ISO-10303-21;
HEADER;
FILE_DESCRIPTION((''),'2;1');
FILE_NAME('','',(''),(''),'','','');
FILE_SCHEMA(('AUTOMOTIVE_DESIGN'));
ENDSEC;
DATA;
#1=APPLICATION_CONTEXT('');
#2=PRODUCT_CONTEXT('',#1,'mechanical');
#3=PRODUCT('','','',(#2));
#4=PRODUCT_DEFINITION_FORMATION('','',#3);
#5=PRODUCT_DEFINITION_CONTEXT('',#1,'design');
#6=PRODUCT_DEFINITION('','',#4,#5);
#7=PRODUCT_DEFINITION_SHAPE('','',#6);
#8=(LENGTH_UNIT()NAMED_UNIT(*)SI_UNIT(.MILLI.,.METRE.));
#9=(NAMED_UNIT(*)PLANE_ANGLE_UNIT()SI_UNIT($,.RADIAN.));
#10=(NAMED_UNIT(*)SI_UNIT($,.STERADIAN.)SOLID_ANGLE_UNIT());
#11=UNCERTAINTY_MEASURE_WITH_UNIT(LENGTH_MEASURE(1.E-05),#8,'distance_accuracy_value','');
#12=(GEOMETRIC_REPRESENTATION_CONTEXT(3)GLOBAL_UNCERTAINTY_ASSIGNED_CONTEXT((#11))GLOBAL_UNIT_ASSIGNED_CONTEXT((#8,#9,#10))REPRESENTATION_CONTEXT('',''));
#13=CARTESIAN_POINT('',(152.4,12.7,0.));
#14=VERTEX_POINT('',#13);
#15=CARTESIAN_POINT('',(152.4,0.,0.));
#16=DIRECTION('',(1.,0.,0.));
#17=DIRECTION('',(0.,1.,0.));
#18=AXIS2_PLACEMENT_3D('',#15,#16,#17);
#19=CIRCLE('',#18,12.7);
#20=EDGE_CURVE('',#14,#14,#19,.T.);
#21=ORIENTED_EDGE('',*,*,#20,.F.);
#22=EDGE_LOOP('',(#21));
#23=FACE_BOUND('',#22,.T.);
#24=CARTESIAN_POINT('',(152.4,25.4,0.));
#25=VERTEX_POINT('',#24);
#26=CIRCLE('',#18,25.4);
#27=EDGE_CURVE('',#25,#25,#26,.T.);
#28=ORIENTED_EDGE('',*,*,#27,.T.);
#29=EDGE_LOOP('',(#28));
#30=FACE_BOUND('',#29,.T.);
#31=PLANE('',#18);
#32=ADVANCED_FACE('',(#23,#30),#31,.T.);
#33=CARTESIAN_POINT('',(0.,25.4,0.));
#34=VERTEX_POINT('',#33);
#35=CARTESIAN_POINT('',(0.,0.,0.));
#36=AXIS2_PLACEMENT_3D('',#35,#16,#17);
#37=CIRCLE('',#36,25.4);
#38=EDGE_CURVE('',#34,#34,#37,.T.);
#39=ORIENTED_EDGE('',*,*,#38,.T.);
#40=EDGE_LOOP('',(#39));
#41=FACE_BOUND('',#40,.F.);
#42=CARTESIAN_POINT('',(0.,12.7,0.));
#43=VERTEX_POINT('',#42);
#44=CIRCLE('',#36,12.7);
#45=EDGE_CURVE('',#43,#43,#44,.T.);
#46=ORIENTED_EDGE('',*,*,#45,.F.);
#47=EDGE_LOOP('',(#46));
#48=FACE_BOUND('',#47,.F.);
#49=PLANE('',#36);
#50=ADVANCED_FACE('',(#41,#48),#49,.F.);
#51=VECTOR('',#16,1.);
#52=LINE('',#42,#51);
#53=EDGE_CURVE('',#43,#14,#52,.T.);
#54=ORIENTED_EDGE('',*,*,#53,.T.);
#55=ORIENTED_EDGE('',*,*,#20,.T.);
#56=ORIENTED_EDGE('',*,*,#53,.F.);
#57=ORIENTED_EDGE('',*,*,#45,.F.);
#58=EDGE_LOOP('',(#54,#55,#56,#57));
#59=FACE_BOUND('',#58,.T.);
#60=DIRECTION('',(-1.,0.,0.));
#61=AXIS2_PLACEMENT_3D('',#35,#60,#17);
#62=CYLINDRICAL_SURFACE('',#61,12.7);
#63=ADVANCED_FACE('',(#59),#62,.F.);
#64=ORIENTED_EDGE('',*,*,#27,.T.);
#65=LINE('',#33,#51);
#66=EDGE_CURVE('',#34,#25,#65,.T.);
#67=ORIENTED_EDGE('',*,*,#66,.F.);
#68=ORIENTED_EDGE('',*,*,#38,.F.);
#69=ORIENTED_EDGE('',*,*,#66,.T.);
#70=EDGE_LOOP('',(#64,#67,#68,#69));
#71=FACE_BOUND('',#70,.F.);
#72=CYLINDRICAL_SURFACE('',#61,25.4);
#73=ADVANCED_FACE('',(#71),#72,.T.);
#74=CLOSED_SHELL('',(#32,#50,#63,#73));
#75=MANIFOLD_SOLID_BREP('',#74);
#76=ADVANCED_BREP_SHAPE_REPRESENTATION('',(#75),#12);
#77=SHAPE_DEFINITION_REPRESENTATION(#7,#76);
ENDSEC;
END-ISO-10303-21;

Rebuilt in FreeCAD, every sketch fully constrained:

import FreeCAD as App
import Part
import Sketcher
from FreeCAD import Vector
Q = App.Units.Quantity

doc = App.newDocument("Part")
body = doc.addObject("PartDesign::Body", "Body")

sketch1 = body.newObject("Sketcher::SketchObject", "Sketch")
sketch1.AttachmentSupport = (doc.getObject("YZ_Plane"), [""])
sketch1.MapMode = "FlatFace"
sketch1.addGeometry(Part.Circle(Vector(0, 0, 0), Vector(0, 0, 1), 25), False)
sketch1.addGeometry(Part.Circle(Vector(0, 0, 0), Vector(0, 0, 1), 13), False)
sketch1.addConstraint(Sketcher.Constraint("Coincident", 0, 3, -1, 1))
sketch1.addConstraint(Sketcher.Constraint("Coincident", 1, 3, -1, 1))
sketch1.addConstraint(Sketcher.Constraint("Diameter", 0, Q("2 in")))
sketch1.addConstraint(Sketcher.Constraint("Diameter", 1, Q("1 in")))
pad1 = body.newObject("PartDesign::Pad", "Pad")
pad1.Profile = sketch1
pad1.Length = Q("6 in")

doc.recompute()
